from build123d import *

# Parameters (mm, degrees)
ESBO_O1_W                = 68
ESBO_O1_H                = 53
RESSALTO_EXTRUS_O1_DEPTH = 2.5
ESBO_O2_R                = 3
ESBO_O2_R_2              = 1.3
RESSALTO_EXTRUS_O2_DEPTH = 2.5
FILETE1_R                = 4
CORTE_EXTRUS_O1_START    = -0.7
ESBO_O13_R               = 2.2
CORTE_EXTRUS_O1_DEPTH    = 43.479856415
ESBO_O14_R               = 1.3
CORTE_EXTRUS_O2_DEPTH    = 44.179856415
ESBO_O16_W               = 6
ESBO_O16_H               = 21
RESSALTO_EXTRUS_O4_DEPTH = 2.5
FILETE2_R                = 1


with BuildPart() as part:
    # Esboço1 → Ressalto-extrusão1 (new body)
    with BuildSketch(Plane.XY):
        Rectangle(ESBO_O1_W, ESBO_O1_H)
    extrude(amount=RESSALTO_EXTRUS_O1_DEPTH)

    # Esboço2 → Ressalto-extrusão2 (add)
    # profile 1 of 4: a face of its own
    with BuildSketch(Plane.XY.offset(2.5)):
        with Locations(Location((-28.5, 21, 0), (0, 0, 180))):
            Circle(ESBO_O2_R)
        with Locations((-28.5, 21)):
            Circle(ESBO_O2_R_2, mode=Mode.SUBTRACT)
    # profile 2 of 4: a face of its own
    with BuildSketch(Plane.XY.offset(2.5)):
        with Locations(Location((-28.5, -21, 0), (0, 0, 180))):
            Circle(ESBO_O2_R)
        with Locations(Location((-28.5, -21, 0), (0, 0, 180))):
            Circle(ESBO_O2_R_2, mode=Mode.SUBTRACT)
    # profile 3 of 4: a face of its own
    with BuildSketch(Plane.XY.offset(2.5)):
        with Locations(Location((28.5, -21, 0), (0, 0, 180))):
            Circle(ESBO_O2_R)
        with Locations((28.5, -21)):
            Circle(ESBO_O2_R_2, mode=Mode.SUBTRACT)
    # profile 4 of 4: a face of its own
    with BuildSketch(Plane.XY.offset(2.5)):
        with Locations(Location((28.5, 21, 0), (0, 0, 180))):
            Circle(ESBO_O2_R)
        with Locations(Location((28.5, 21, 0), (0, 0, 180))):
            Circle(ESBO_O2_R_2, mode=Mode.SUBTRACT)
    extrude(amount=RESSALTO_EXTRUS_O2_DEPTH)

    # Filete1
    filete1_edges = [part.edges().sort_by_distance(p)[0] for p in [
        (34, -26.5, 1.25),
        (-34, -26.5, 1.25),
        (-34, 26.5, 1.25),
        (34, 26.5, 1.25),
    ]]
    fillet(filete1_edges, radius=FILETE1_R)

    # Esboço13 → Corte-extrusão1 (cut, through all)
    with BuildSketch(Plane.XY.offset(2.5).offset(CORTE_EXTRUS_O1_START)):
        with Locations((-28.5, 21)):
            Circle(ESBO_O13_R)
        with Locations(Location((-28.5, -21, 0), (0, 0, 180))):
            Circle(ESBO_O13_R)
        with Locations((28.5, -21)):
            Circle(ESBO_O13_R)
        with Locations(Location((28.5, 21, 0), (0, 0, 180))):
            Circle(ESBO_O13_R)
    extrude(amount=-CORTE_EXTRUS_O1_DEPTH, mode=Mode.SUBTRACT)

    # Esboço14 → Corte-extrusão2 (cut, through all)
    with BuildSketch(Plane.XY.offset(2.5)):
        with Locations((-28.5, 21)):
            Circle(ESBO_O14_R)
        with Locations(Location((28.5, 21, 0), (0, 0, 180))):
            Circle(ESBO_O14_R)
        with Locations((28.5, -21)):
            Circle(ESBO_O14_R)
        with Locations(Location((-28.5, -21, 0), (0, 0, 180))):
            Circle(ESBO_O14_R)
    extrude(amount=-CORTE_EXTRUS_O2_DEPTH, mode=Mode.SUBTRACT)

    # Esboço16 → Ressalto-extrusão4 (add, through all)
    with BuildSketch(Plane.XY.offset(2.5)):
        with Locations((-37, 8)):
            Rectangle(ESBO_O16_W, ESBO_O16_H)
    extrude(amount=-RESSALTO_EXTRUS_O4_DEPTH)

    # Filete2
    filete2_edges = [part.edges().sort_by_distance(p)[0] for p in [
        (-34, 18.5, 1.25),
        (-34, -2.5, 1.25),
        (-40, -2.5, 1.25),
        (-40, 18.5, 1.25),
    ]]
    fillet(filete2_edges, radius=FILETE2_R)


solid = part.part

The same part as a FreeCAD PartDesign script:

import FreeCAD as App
import Part
import Sketcher

V = App.Vector
Q = App.Units.Quantity


def edges_at(feature, points):
    """Names of the edges that pass closest to the given points."""
    edges = feature.Shape.Edges
    near = lambda p: min(range(len(edges)), key=lambda i: edges[i].distToShape(Part.Vertex(*p))[0])
    return sorted({f"Edge{near(p) + 1}" for p in points})


def add_polygon(sketch, points):
    """Adds a closed chain of lines whose ends are joined by coincident constraints."""
    first, n = sketch.GeometryCount, len(points)
    for a, b in zip(points, points[1:] + points[:1]):
        sketch.addGeometry(Part.LineSegment(App.Vector(*a, 0), App.Vector(*b, 0)), False)
    for i in range(n):
        sketch.addConstraint(Sketcher.Constraint("Coincident", first + i, 2, first + (i + 1) % n, 1))

doc = App.newDocument("Part")
body = doc.addObject("PartDesign::Body", "Body")

sketch1 = doc.addObject("Sketcher::SketchObject", "Sketch")
body.addObject(sketch1)
sketch1.AttachmentSupport = (doc.XY_Plane, [""])
sketch1.MapMode = "FlatFace"
add_polygon(sketch1, [(-34, 26.5), (-34, -26.5), (34, -26.5), (34, 26.5)])
sketch1.addConstraint([
    Sketcher.Constraint("Vertical", 0),
    Sketcher.Constraint("Horizontal", 1),
    Sketcher.Constraint("Vertical", 2),
    Sketcher.Constraint("Horizontal", 3),
    Sketcher.Constraint("Symmetric", 0, 2, 2, 2, -1, 1),
    Sketcher.Constraint("DistanceX", 1, 1, 1, 2, Q("68 mm")),
    Sketcher.Constraint("DistanceY", 0, 2, 0, 1, Q("53 mm")),
])
pad1 = doc.addObject("PartDesign::Pad", "Pad")
body.addObject(pad1)
pad1.Profile = sketch1
pad1.Length = 2.5

sketch2 = doc.addObject("Sketcher::SketchObject", "Sketch001")
body.addObject(sketch2)
sketch2.AttachmentSupport = (doc.XY_Plane, [""])
sketch2.MapMode = "FlatFace"
sketch2.AttachmentOffset = App.Placement(V(0, 0, 2.5), App.Rotation())
sketch2.addGeometry([
    Part.Circle(V(-28.5, 21, 0), V(0, 0, 1), 3),
    Part.Circle(V(-28.5, 21, 0), V(0, 0, 1), 1.3),
    Part.Circle(V(-28.5, -21, 0), V(0, 0, 1), 3),
    Part.Circle(V(-28.5, -21, 0), V(0, 0, 1), 1.3),
    Part.Circle(V(28.5, -21, 0), V(0, 0, 1), 3),
    Part.Circle(V(28.5, -21, 0), V(0, 0, 1), 1.3),
    Part.Circle(V(28.5, 21, 0), V(0, 0, 1), 3),
    Part.Circle(V(28.5, 21, 0), V(0, 0, 1), 1.3),
], False)
sketch2.addConstraint([
    Sketcher.Constraint("Coincident", 1, 3, 0, 3),
    Sketcher.Constraint("Coincident", 3, 3, 2, 3),
    Sketcher.Constraint("Coincident", 5, 3, 4, 3),
    Sketcher.Constraint("Coincident", 7, 3, 6, 3),
    Sketcher.Constraint("Equal", 0, 2),
    Sketcher.Constraint("Equal", 1, 3),
    Sketcher.Constraint("Equal", 2, 4),
    Sketcher.Constraint("Equal", 3, 5),
    Sketcher.Constraint("Equal", 4, 6),
    Sketcher.Constraint("Equal", 5, 7),
    Sketcher.Constraint("Symmetric", 0, 3, 4, 3, -1, 1),
    Sketcher.Constraint("Symmetric", 2, 3, 6, 3, -1, 1),
    Sketcher.Constraint("Symmetric", 2, 3, 4, 3, -2),
    Sketcher.Constraint("Diameter", 0, Q("6 mm")),
    Sketcher.Constraint("Diameter", 1, Q("2.6 mm")),
    Sketcher.Constraint("DistanceY", -1, 1, 0, 3, Q("21 mm")),
    Sketcher.Constraint("DistanceX", 2, 3, 4, 3, Q("57 mm")),
])
pad2 = doc.addObject("PartDesign::Pad", "Pad001")
body.addObject(pad2)
pad2.Profile = sketch2
pad2.Length = 2.5
doc.recompute()

fillet = doc.addObject("PartDesign::Fillet", "Fillet")
body.addObject(fillet)
fillet.Base = (pad2, edges_at(pad2, [
    (34, -26.5, 1.25),
    (-34, -26.5, 1.25),
    (-34, 26.5, 1.25),
    (34, 26.5, 1.25),
]))
fillet.Radius = 4

sketch3 = doc.addObject("Sketcher::SketchObject", "Sketch002")
body.addObject(sketch3)
sketch3.AttachmentSupport = (doc.XY_Plane, [""])
sketch3.MapMode = "FlatFace"
sketch3.AttachmentOffset = App.Placement(V(0, 0, 1.8), App.Rotation())
sketch3.addGeometry([
    Part.Circle(V(-28.5, 21, 0), V(0, 0, 1), 2.2),
    Part.Circle(V(-28.5, -21, 0), V(0, 0, 1), 2.2),
    Part.Circle(V(28.5, -21, 0), V(0, 0, 1), 2.2),
    Part.Circle(V(28.5, 21, 0), V(0, 0, 1), 2.2),
], False)
sketch3.addConstraint([
    Sketcher.Constraint("Equal", 0, 1),
    Sketcher.Constraint("Equal", 1, 2),
    Sketcher.Constraint("Equal", 2, 3),
    Sketcher.Constraint("Symmetric", 0, 3, 2, 3, -1, 1),
    Sketcher.Constraint("Symmetric", 1, 3, 3, 3, -1, 1),
    Sketcher.Constraint("Symmetric", 1, 3, 2, 3, -2),
    Sketcher.Constraint("Diameter", 0, Q("4.4 mm")),
    Sketcher.Constraint("DistanceY", -1, 1, 0, 3, Q("21 mm")),
    Sketcher.Constraint("DistanceX", 1, 3, 2, 3, Q("57 mm")),
])
pocket1 = doc.addObject("PartDesign::Pocket", "Pocket")
body.addObject(pocket1)
pocket1.Profile = sketch3
pocket1.Type = "ThroughAll"

sketch4 = doc.addObject("Sketcher::SketchObject", "Sketch003")
body.addObject(sketch4)
sketch4.AttachmentSupport = (doc.XY_Plane, [""])
sketch4.MapMode = "FlatFace"
sketch4.AttachmentOffset = App.Placement(V(0, 0, 2.5), App.Rotation())
sketch4.addGeometry([
    Part.Circle(V(-28.5, 21, 0), V(0, 0, 1), 1.3),
    Part.Circle(V(28.5, 21, 0), V(0, 0, 1), 1.3),
    Part.Circle(V(28.5, -21, 0), V(0, 0, 1), 1.3),
    Part.Circle(V(-28.5, -21, 0), V(0, 0, 1), 1.3),
], False)
sketch4.addConstraint([
    Sketcher.Constraint("Equal", 0, 1),
    Sketcher.Constraint("Equal", 1, 2),
    Sketcher.Constraint("Equal", 2, 3),
    Sketcher.Constraint("Symmetric", 0, 3, 2, 3, -1, 1),
    Sketcher.Constraint("Symmetric", 1, 3, 3, 3, -1, 1),
    Sketcher.Constraint("Symmetric", 0, 3, 1, 3, -2),
    Sketcher.Constraint("Diameter", 0, Q("2.6 mm")),
    Sketcher.Constraint("DistanceY", -1, 1, 0, 3, Q("21 mm")),
    Sketcher.Constraint("DistanceX", 0, 3, 1, 3, Q("57 mm")),
])
pocket2 = doc.addObject("PartDesign::Pocket", "Pocket001")
body.addObject(pocket2)
pocket2.Profile = sketch4
pocket2.Type = "ThroughAll"

sketch5 = doc.addObject("Sketcher::SketchObject", "Sketch004")
body.addObject(sketch5)
sketch5.AttachmentSupport = (doc.XY_Plane, [""])
sketch5.MapMode = "FlatFace"
sketch5.AttachmentOffset = App.Placement(V(0, 0, 2.5), App.Rotation())
add_polygon(sketch5, [(-40, 18.5), (-40, -2.5), (-34, -2.5), (-34, 18.5)])
sketch5.addConstraint([
    Sketcher.Constraint("Vertical", 0),
    Sketcher.Constraint("Horizontal", 1),
    Sketcher.Constraint("Vertical", 2),
    Sketcher.Constraint("Horizontal", 3),
    Sketcher.Constraint("DistanceX", 1, 1, 1, 2, Q("6 mm")),
    Sketcher.Constraint("DistanceY", 0, 2, 0, 1, Q("21 mm")),
    Sketcher.Constraint("DistanceX", 0, 2, -1, 1, Q("40 mm")),
    Sketcher.Constraint("DistanceY", 0, 2, -1, 1, Q("2.5 mm")),
])
pad3 = doc.addObject("PartDesign::Pad", "Pad002")
body.addObject(pad3)
pad3.Profile = sketch5
pad3.Length = 2.5
pad3.Reversed = True
doc.recompute()

fillet2 = doc.addObject("PartDesign::Fillet", "Fillet001")
body.addObject(fillet2)
fillet2.Base = (pad3, edges_at(pad3, [
    (-34, 18.5, 1.25),
    (-34, -2.5, 1.25),
    (-40, -2.5, 1.25),
    (-40, 18.5, 1.25),
]))
fillet2.Radius = 1

doc.recompute()
